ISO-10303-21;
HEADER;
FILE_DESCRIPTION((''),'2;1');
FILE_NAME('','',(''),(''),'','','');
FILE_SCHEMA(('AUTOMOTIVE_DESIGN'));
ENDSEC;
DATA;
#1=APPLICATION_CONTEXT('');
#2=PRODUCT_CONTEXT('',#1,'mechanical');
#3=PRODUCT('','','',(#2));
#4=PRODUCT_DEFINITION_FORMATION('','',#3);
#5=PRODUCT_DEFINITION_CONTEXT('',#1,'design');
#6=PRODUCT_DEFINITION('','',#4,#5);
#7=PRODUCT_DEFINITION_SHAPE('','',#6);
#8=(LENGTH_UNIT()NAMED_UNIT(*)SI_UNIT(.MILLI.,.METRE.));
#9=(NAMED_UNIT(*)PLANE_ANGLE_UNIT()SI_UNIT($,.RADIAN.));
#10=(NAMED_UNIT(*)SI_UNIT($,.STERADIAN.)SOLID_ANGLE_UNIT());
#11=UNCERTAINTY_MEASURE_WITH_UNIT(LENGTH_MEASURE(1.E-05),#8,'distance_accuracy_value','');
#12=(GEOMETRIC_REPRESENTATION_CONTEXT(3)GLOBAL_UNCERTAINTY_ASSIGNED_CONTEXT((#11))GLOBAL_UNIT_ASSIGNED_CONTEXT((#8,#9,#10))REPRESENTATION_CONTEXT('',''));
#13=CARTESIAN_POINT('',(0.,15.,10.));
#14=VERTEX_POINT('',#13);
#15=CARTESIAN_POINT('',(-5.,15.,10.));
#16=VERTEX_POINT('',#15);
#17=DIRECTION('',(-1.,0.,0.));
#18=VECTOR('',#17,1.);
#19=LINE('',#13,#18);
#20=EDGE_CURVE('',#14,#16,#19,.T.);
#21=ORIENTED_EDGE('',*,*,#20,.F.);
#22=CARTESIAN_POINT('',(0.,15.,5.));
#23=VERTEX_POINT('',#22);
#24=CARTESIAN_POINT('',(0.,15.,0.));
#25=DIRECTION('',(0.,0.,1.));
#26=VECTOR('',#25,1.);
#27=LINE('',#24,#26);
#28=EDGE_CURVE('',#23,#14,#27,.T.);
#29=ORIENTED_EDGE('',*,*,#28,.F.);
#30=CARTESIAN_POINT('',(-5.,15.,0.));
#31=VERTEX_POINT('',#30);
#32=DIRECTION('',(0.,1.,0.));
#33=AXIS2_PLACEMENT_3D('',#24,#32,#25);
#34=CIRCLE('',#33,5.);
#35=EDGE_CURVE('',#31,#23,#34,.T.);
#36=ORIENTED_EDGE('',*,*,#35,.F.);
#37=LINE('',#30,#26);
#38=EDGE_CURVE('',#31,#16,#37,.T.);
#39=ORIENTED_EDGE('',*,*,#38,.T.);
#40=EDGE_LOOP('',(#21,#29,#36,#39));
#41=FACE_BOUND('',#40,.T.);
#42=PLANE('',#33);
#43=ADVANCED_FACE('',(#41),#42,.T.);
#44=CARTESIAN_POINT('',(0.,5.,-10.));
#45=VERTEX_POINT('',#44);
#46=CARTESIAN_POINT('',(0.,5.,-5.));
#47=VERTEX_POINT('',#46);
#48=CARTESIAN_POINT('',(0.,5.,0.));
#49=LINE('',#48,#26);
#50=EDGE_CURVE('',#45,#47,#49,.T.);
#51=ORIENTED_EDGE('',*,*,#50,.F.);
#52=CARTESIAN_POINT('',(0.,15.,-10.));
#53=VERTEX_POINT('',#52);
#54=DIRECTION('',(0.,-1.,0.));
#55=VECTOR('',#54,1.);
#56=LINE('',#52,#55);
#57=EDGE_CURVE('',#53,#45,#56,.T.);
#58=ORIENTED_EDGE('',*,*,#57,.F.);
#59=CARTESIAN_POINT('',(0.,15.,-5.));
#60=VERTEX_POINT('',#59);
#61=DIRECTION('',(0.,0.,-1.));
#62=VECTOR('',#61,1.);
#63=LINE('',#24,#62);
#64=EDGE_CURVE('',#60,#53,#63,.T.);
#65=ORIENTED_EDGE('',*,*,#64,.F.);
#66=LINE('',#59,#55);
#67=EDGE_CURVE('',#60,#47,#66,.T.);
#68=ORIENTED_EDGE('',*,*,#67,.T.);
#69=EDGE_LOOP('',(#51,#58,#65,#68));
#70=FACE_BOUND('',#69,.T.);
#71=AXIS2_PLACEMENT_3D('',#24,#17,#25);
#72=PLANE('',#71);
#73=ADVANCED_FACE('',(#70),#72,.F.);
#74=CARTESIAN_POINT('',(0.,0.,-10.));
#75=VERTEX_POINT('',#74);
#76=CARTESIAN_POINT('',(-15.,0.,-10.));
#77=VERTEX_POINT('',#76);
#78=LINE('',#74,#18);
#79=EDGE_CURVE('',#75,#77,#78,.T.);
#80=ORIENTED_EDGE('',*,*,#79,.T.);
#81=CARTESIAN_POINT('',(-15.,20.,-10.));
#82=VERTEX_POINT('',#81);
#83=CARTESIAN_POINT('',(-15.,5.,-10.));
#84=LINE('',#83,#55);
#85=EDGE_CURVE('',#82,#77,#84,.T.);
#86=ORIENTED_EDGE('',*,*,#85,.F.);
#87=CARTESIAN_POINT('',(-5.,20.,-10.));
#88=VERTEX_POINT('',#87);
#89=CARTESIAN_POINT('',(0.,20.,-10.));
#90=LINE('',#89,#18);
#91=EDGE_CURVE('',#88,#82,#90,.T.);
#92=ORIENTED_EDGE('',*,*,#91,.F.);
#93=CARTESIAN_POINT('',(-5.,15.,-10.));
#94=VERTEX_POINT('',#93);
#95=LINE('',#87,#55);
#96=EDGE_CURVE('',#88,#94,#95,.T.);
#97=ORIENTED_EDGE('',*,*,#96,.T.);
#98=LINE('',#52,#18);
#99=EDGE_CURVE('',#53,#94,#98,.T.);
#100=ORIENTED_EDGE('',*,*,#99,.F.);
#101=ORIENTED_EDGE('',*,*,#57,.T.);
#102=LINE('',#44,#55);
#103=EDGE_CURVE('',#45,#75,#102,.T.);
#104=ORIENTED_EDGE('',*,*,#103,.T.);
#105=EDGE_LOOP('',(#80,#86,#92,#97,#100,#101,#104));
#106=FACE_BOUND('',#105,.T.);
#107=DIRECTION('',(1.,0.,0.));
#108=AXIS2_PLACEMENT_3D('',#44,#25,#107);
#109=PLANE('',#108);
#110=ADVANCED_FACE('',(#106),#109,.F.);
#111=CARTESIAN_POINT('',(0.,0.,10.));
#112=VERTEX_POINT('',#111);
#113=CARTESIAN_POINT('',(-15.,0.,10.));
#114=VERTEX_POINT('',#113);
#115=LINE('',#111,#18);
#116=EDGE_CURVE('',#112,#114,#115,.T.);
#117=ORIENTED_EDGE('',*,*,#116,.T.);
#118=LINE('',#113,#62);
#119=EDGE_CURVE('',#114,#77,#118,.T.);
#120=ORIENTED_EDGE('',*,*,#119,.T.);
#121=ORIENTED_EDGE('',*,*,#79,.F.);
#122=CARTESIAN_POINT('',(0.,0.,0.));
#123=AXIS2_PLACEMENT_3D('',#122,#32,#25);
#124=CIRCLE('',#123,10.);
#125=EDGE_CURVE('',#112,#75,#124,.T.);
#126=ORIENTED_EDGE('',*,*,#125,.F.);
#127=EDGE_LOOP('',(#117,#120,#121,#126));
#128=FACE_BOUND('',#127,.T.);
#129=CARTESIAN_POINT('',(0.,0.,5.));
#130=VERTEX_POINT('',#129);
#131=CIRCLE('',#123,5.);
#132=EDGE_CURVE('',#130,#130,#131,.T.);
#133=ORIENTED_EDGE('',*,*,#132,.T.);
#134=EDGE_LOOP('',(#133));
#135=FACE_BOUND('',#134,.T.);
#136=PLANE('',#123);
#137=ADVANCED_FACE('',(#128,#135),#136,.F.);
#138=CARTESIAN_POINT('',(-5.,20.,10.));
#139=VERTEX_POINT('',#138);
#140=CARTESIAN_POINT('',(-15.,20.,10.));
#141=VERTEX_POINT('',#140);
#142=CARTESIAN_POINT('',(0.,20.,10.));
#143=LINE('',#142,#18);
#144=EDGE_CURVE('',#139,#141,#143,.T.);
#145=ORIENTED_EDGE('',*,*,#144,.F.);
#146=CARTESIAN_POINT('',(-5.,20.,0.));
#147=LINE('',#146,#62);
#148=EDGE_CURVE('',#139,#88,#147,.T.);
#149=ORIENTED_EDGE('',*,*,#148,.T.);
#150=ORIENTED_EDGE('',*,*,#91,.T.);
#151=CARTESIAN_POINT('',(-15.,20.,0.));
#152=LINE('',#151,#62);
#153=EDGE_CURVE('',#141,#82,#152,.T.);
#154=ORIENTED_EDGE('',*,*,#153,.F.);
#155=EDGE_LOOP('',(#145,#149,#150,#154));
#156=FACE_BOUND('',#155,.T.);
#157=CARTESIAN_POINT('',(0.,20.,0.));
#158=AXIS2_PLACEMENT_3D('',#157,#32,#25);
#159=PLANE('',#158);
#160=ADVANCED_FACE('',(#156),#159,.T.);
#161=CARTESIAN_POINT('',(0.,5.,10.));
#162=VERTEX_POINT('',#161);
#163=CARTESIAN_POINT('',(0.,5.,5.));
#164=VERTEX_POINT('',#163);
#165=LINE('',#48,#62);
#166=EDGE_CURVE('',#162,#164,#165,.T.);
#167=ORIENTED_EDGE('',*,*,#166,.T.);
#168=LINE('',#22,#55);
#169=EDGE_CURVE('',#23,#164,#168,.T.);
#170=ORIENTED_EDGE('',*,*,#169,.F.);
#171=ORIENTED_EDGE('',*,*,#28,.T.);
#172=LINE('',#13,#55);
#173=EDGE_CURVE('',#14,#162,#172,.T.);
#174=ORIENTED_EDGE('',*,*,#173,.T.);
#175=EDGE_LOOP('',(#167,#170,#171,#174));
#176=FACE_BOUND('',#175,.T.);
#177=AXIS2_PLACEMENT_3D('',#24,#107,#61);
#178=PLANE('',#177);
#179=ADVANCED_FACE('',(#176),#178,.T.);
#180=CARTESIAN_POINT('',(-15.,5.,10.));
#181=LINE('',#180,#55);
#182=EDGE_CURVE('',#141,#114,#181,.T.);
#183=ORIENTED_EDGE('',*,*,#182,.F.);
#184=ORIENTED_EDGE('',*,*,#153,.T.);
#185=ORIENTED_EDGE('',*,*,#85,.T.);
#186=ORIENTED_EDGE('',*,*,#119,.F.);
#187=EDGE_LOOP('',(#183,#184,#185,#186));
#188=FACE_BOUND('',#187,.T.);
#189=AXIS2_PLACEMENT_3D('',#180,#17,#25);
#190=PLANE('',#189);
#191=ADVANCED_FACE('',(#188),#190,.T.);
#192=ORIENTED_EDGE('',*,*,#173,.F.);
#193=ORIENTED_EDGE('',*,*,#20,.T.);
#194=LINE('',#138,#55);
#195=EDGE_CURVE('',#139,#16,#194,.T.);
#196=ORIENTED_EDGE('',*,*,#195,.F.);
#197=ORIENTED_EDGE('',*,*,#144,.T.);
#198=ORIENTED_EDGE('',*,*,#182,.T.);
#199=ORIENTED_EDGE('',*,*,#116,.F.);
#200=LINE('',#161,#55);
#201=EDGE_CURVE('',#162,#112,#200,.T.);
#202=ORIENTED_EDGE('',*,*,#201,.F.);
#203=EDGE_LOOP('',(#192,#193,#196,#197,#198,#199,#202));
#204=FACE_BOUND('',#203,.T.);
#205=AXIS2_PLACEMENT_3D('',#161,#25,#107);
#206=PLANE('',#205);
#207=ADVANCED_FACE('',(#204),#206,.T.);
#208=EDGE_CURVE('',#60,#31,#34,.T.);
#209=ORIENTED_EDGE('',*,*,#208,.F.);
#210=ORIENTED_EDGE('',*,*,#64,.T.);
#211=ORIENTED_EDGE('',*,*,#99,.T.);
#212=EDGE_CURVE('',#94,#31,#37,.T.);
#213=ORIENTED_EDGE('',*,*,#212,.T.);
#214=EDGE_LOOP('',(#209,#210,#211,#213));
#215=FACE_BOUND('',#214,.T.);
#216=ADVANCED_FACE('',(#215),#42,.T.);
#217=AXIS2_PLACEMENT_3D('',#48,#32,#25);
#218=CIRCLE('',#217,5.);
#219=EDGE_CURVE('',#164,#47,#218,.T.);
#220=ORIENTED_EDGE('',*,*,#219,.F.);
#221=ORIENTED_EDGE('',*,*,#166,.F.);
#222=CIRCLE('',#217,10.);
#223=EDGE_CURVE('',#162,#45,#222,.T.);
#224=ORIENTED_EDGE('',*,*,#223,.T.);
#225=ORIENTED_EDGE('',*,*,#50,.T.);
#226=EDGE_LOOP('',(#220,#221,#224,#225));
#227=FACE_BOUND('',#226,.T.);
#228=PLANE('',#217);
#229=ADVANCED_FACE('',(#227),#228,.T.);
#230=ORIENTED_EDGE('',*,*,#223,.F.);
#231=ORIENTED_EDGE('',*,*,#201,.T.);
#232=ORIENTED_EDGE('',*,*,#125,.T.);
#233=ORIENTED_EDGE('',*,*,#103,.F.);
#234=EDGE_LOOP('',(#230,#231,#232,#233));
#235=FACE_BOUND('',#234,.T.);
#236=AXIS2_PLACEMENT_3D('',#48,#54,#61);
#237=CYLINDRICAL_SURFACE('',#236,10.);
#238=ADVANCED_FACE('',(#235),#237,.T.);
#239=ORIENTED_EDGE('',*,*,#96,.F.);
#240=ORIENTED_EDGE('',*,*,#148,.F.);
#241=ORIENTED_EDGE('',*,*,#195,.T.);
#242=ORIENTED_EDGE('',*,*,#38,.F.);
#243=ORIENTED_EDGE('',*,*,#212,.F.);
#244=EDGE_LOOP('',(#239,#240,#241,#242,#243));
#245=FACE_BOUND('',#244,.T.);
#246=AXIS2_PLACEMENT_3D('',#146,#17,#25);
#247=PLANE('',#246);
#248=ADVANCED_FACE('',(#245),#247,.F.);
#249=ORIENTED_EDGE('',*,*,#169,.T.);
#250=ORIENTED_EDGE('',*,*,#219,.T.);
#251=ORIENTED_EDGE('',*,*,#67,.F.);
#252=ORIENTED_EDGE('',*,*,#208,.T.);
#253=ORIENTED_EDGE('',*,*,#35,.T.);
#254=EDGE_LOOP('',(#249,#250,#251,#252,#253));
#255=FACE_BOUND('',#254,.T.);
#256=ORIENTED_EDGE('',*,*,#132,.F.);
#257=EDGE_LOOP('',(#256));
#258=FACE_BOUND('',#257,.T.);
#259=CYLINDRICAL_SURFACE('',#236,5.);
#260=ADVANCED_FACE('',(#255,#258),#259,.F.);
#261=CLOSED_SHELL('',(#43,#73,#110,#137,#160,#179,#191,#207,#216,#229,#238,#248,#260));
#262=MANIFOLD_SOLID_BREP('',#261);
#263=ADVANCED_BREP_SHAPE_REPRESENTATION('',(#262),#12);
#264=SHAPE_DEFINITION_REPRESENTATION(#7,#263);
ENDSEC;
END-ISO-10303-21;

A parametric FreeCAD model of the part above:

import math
import FreeCAD as App
import Part
import Sketcher

V = App.Vector

doc = App.newDocument("Part")
body = doc.addObject("PartDesign::Body", "Body")

sketch1 = body.newObject("Sketcher::SketchObject", "Sketch")
sketch1.AttachmentSupport = (doc.getObject("XZ_Plane"), [""])
sketch1.MapMode = "FlatFace"
sketch1.addGeometry(Part.LineSegment(V(-15, 10, 0), V(0, 10, 0)), False)
sketch1.addGeometry(Part.ArcOfCircle(Part.Circle(V(0, 0, 0), V(0, 0, 1), 10), math.radians(-90), math.radians(90)), False)
sketch1.addGeometry(Part.LineSegment(V(0, -10, 0), V(-15, -10, 0)), False)
sketch1.addGeometry(Part.LineSegment(V(-15, -10, 0), V(-15, 10, 0)), False)
sketch1.addGeometry(Part.Circle(V(0, 0, 0), V(0, 0, 1), 5), False)
sketch1.addConstraint(Sketcher.Constraint("Tangent", 0, 2, 1, 2))
sketch1.addConstraint(Sketcher.Constraint("Tangent", 1, 1, 2, 1))
sketch1.addConstraint(Sketcher.Constraint("Coincident", 2, 2, 3, 1))
sketch1.addConstraint(Sketcher.Constraint("Coincident", 3, 2, 0, 1))
sketch1.addConstraint(Sketcher.Constraint("Horizontal", 0))
sketch1.addConstraint(Sketcher.Constraint("Horizontal", 2))
sketch1.addConstraint(Sketcher.Constraint("Vertical", 3))
sketch1.addConstraint(Sketcher.Constraint("Coincident", 1, 3, -1, 1))
sketch1.addConstraint(Sketcher.Constraint("Coincident", 4, 3, -1, 1))
sketch1.addConstraint(Sketcher.Constraint("Diameter", 4, 10.0))
sketch1.addConstraint(Sketcher.Constraint("Radius", 1, 10.0))
sketch1.addConstraint(Sketcher.Constraint("DistanceX", 0, 1, 0, 2, 15.0))
pad1 = body.newObject("PartDesign::Pad", "Pad")
pad1.Profile = sketch1
pad1.Length = 5
pad1.Reversed = True

sketch2 = body.newObject("Sketcher::SketchObject", "Sketch001")
sketch2.AttachmentSupport = (doc.getObject("XZ_Plane"), [""])
sketch2.MapMode = "FlatFace"
sketch2.addGeometry(Part.LineSegment(V(0, 10, 0), V(0, 5, 0)), False)
sketch2.addGeometry(Part.ArcOfCircle(Part.Circle(V(0, 0, 0), V(0, 0, 1), 5), math.radians(90), math.radians(180)), False)
sketch2.addGeometry(Part.ArcOfCircle(Part.Circle(V(0, 0, 0), V(0, 0, 1), 5), math.radians(180), math.radians(270)), False)
sketch2.addGeometry(Part.LineSegment(V(0, -5, 0), V(0, -10, 0)), False)
sketch2.addGeometry(Part.LineSegment(V(0, -10, 0), V(-15, -10, 0)), False)
sketch2.addGeometry(Part.LineSegment(V(-15, -10, 0), V(-15, 10, 0)), False)
sketch2.addGeometry(Part.LineSegment(V(-15, 10, 0), V(0, 10, 0)), False)
sketch2.addConstraint(Sketcher.Constraint("Coincident", 0, 2, 1, 1))
sketch2.addConstraint(Sketcher.Constraint("Tangent", 1, 2, 2, 1))
sketch2.addConstraint(Sketcher.Constraint("Coincident", 2, 2, 3, 1))
sketch2.addConstraint(Sketcher.Constraint("Coincident", 3, 2, 4, 1))
sketch2.addConstraint(Sketcher.Constraint("Coincident", 4, 2, 5, 1))
sketch2.addConstraint(Sketcher.Constraint("Coincident", 5, 2, 6, 1))
sketch2.addConstraint(Sketcher.Constraint("Coincident", 6, 2, 0, 1))
sketch2.addConstraint(Sketcher.Constraint("Vertical", 0))
sketch2.addConstraint(Sketcher.Constraint("Vertical", 3))
sketch2.addConstraint(Sketcher.Constraint("Horizontal", 4))
sketch2.addConstraint(Sketcher.Constraint("Vertical", 5))
sketch2.addConstraint(Sketcher.Constraint("Horizontal", 6))
sketch2.addConstraint(Sketcher.Constraint("Coincident", 1, 3, -1, 1))
sketch2.addConstraint(Sketcher.Constraint("Equal", 1, 2))
sketch2.addConstraint(Sketcher.Constraint("Symmetric", 3, 2, 6, 2, -1, 1))
sketch2.addConstraint(Sketcher.Constraint("PointOnObject", 0, 2, -2))
sketch2.addConstraint(Sketcher.Constraint("PointOnObject", 1, 2, -1))
sketch2.addConstraint(Sketcher.Constraint("Radius", 1, 5.0))
sketch2.addConstraint(Sketcher.Constraint("DistanceX", 4, 2, 4, 1, 15.0))
sketch2.addConstraint(Sketcher.Constraint("DistanceY", 0, 2, 0, 1, 5.0))
pad2 = body.newObject("PartDesign::Pad", "Pad001")
pad2.Profile = sketch2
pad2.Length = 15
pad2.Reversed = True

sketch3 = body.newObject("Sketcher::SketchObject", "Sketch002")
sketch3.AttachmentSupport = (doc.getObject("XZ_Plane"), [""])
sketch3.MapMode = "FlatFace"
sketch3.addGeometry(Part.LineSegment(V(-15, 10, 0), V(-5, 10, 0)), False)
sketch3.addGeometry(Part.LineSegment(V(-5, 10, 0), V(-5, -10, 0)), False)
sketch3.addGeometry(Part.LineSegment(V(-5, -10, 0), V(-15, -10, 0)), False)
sketch3.addGeometry(Part.LineSegment(V(-15, -10, 0), V(-15, 10, 0)), False)
sketch3.addConstraint(Sketcher.Constraint("Coincident", 0, 2, 1, 1))
sketch3.addConstraint(Sketcher.Constraint("Coincident", 1, 2, 2, 1))
sketch3.addConstraint(Sketcher.Constraint("Coincident", 2, 2, 3, 1))
sketch3.addConstraint(Sketcher.Constraint("Coincident", 3, 2, 0, 1))
sketch3.addConstraint(Sketcher.Constraint("Horizontal", 0))
sketch3.addConstraint(Sketcher.Constraint("Vertical", 1))
sketch3.addConstraint(Sketcher.Constraint("Horizontal", 2))
sketch3.addConstraint(Sketcher.Constraint("Vertical", 3))
sketch3.addConstraint(Sketcher.Constraint("DistanceX", 0, 1, 0, 2, 10.0))
sketch3.addConstraint(Sketcher.Constraint("DistanceY", 1, 2, 1, 1, 20.0))
sketch3.addConstraint(Sketcher.Constraint("DistanceX", 0, 2, -1, 1, 5.0))
sketch3.addConstraint(Sketcher.Constraint("DistanceY", -1, 1, 0, 2, 10.0))
pad3 = body.newObject("PartDesign::Pad", "Pad002")
pad3.Profile = sketch3
pad3.Length = 20
pad3.Reversed = True

doc.recompute()
